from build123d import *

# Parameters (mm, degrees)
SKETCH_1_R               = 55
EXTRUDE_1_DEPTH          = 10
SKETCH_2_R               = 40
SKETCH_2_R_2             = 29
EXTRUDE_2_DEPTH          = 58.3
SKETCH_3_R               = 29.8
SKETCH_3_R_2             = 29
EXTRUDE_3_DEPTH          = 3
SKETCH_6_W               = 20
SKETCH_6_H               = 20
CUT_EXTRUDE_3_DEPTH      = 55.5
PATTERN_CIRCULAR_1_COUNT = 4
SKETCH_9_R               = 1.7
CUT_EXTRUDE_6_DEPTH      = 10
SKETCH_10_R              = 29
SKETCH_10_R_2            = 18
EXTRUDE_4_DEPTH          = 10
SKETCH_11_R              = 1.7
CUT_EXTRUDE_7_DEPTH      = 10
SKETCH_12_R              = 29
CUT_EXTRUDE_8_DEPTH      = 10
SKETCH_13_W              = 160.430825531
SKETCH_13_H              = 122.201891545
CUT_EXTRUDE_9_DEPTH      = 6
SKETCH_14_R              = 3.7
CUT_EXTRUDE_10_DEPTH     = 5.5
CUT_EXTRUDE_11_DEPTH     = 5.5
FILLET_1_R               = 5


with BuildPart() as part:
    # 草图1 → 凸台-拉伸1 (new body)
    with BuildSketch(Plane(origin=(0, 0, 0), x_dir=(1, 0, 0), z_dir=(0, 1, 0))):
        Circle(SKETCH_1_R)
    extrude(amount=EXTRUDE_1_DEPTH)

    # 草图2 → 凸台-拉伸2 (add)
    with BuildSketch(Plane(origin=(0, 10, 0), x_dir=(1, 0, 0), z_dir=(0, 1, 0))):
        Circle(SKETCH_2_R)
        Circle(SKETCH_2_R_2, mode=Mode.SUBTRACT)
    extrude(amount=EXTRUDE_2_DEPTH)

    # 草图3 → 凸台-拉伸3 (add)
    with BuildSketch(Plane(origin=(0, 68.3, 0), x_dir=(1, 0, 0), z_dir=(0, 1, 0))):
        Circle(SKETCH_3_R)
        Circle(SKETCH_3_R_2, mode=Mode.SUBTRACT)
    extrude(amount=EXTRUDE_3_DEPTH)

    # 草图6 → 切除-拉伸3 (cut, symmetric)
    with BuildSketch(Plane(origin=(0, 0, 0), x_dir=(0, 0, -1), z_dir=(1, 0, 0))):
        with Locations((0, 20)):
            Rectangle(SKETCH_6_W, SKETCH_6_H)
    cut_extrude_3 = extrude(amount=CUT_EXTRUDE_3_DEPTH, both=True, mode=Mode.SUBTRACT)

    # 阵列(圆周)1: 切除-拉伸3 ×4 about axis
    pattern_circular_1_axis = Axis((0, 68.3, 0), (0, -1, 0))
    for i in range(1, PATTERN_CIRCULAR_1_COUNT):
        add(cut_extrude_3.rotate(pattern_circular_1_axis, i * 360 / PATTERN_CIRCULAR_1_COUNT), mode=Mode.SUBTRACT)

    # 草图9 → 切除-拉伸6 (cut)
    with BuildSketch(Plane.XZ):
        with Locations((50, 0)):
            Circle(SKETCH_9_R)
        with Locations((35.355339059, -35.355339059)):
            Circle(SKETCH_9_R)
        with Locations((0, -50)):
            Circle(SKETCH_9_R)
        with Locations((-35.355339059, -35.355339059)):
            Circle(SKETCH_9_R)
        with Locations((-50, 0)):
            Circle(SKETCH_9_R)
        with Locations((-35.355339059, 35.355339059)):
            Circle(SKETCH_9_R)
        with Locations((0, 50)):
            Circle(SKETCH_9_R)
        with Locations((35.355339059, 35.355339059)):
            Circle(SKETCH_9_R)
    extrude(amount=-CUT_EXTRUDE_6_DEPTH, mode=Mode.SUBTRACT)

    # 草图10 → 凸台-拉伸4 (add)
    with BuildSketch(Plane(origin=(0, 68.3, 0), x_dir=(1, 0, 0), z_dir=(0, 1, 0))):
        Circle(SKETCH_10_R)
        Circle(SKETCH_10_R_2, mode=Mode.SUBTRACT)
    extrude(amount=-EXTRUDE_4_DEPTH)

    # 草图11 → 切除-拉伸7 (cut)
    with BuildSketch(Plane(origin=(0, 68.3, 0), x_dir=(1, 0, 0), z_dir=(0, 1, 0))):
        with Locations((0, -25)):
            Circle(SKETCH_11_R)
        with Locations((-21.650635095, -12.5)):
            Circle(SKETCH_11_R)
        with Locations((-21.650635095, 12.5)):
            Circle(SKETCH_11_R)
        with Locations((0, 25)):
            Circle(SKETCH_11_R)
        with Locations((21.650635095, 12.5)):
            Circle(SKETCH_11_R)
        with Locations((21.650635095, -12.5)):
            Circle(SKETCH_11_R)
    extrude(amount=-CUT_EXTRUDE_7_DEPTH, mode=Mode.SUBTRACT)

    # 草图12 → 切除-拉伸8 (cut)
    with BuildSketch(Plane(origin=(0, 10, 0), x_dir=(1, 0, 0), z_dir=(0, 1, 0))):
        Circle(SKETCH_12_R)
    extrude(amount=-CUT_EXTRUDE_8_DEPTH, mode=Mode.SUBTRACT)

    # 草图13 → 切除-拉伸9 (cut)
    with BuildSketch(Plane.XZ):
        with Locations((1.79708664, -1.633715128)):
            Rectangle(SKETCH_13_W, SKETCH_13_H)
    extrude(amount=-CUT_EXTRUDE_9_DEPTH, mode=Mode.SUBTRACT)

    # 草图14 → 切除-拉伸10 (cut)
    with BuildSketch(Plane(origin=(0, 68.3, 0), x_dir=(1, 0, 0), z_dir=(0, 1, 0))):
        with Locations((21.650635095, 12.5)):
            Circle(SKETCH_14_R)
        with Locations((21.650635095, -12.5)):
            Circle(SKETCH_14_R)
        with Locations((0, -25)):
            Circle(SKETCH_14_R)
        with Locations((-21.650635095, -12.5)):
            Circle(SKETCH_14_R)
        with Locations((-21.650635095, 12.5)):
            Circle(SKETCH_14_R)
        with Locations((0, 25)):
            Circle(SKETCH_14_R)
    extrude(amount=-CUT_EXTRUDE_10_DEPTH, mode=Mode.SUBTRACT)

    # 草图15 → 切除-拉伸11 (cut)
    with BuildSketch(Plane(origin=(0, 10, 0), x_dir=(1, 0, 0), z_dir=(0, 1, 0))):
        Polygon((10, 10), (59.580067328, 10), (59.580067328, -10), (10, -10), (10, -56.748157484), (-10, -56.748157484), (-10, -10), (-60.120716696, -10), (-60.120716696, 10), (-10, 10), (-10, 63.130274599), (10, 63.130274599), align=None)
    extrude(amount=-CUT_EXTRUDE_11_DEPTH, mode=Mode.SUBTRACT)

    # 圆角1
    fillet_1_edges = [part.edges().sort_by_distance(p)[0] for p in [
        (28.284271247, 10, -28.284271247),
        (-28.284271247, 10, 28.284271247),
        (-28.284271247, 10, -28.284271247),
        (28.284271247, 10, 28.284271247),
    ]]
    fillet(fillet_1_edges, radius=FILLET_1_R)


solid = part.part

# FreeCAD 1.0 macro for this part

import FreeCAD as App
import Part
import Sketcher

V = App.Vector


def edges_at(feature, points):
    """Names of the edges that pass closest to the given points."""
    edges = feature.Shape.Edges
    near = lambda p: min(range(len(edges)), key=lambda i: edges[i].distToShape(Part.Vertex(*p))[0])
    return sorted({f"Edge{near(p) + 1}" for p in points})


def add_polygon(sketch, points):
    """Adds a closed chain of lines whose ends are joined by coincident constraints."""
    first, n = sketch.GeometryCount, len(points)
    for a, b in zip(points, points[1:] + points[:1]):
        sketch.addGeometry(Part.LineSegment(App.Vector(*a, 0), App.Vector(*b, 0)), False)
    for i in range(n):
        sketch.addConstraint(Sketcher.Constraint("Coincident", first + i, 2, first + (i + 1) % n, 1))

doc = App.newDocument("Part")
params = doc.addObject("Spreadsheet::Sheet", "Params")
for row, (alias, value) in enumerate([
    ("sketch1_diameter", "110 mm"),
    ("pad1_length", "10 mm"),
    ("sketch2_diameter", "80 mm"),
    ("sketch2_diameter2", "58 mm"),
    ("pad2_length", "58.3 mm"),
    ("sketch3_diameter", "58 mm"),
    ("sketch3_diameter2", "59.6 mm"),
    ("pad3_length", "3 mm"),
    ("sketch4_width", "20 mm"),
    ("pocket1_length", "111 mm"),
    ("sketch5_diameter", "3.4 mm"),
    ("pocket2_length", "10 mm"),
    ("sketch6_diameter", "58 mm"),
    ("sketch6_diameter2", "36 mm"),
    ("pad4_length", "10 mm"),
    ("sketch7_diameter", "3.4 mm"),
    ("pocket3_length", "10 mm"),
    ("sketch8_diameter", "58 mm"),
    ("pocket4_length", "10 mm"),
    ("pocket5_length", "6 mm"),
    ("sketch10_diameter", "7.4 mm"),
    ("pocket6_length", "5.5 mm"),
    ("sketch11_width", "20 mm"),
    ("pocket7_length", "5.5 mm"),
    ("fillet_radius", "5 mm"),
], start=1):
    params.set(f"A{row}", alias)
    params.set(f"B{row}", "=" + value)
    params.setAlias(f"B{row}", alias)

body = doc.addObject("PartDesign::Body", "Body")

sketch1 = body.newObject("Sketcher::SketchObject", "Sketch")
sketch1.AttachmentSupport = (doc.getObject("XZ_Plane"), [""])
sketch1.MapMode = "FlatFace"
sketch1.addGeometry(Part.Circle(V(0, 0, 0), V(0, 0, 1), 55), False)
sketch1.addConstraint([
    Sketcher.Constraint("Coincident", 0, 3, -1, 1),
    Sketcher.Constraint("Diameter", 0, 110.0),
])
sketch1.setExpression("Constraints[1]", "Params.sketch1_diameter")
pad1 = body.newObject("PartDesign::Pad", "Pad")
pad1.Profile = sketch1
pad1.setExpression("Length", "Params.pad1_length")
pad1.Reversed = True

sketch2 = body.newObject("Sketcher::SketchObject", "Sketch001")
sketch2.AttachmentSupport = (doc.getObject("XZ_Plane"), [""])
sketch2.MapMode = "FlatFace"
sketch2.AttachmentOffset = App.Placement(V(0, 0, -10), App.Rotation())
sketch2.addGeometry([
    Part.Circle(V(0, 0, 0), V(0, 0, 1), 40),
    Part.Circle(V(0, 0, 0), V(0, 0, 1), 29),
], False)
sketch2.addConstraint([
    Sketcher.Constraint("Coincident", 0, 3, -1, 1),
    Sketcher.Constraint("Coincident", 1, 3, -1, 1),
    Sketcher.Constraint("Diameter", 0, 80.0),
    Sketcher.Constraint("Diameter", 1, 58.0),
])
sketch2.setExpression("Constraints[2]", "Params.sketch2_diameter")
sketch2.setExpression("Constraints[3]", "Params.sketch2_diameter2")
pad2 = body.newObject("PartDesign::Pad", "Pad001")
pad2.Profile = sketch2
pad2.setExpression("Length", "Params.pad2_length")
pad2.Reversed = True

sketch3 = body.newObject("Sketcher::SketchObject", "Sketch002")
sketch3.AttachmentSupport = (doc.getObject("XZ_Plane"), [""])
sketch3.MapMode = "FlatFace"
sketch3.AttachmentOffset = App.Placement(V(0, 0, -68.3), App.Rotation())
sketch3.addGeometry([
    Part.Circle(V(0, 0, 0), V(0, 0, 1), 30),
    Part.Circle(V(0, 0, 0), V(0, 0, 1), 29),
], False)
sketch3.addConstraint([
    Sketcher.Constraint("Coincident", 0, 3, -1, 1),
    Sketcher.Constraint("Coincident", 1, 3, -1, 1),
    Sketcher.Constraint("Diameter", 1, 58.0),
    Sketcher.Constraint("Diameter", 0, 59.6),
])
sketch3.setExpression("Constraints[2]", "Params.sketch3_diameter")
sketch3.setExpression("Constraints[3]", "Params.sketch3_diameter2")
pad3 = body.newObject("PartDesign::Pad", "Pad002")
pad3.Profile = sketch3
pad3.setExpression("Length", "Params.pad3_length")
pad3.Reversed = True

sketch4 = body.newObject("Sketcher::SketchObject", "Sketch003")
sketch4.AttachmentSupport = (doc.getObject("YZ_Plane"), [""])
sketch4.MapMode = "FlatFace"
add_polygon(sketch4, [(30, 10), (10, 10), (10, -10), (30, -10)])
sketch4.addConstraint([
    Sketcher.Constraint("Horizontal", 0),
    Sketcher.Constraint("Vertical", 1),
    Sketcher.Constraint("Horizontal", 2),
    Sketcher.Constraint("Vertical", 3),
    Sketcher.Constraint("Equal", 2, 1),
    Sketcher.Constraint("DistanceX", 0, 2, 0, 1, 20.0),
    Sketcher.Constraint("DistanceX", -1, 1, 0, 2, 10.0),
    Sketcher.Constraint("DistanceY", -1, 1, 0, 2, 10.0),
])
sketch4.setExpression("Constraints[9]", "Params.sketch4_width")
pocket1 = body.newObject("PartDesign::Pocket", "Pocket")
pocket1.Profile = sketch4
pocket1.setExpression("Length", "Params.pocket1_length")
pocket1.Midplane = True
doc.recompute()

polarpattern = body.newObject("PartDesign::PolarPattern", "PolarPattern")
polarpattern.Originals = [pocket1]
polarpattern.Axis = (doc.getObject("Y_Axis"), [""])
polarpattern.Angle = 360
polarpattern.Occurrences = 4
body.Tip = polarpattern

sketch5 = body.newObject("Sketcher::SketchObject", "Sketch004")
sketch5.AttachmentSupport = (doc.getObject("XZ_Plane"), [""])
sketch5.MapMode = "FlatFace"
sketch5.addGeometry([
    Part.Circle(V(50, 0, 0), V(0, 0, 1), 1.7),
    Part.Circle(V(35.4, -35.4, 0), V(0, 0, 1), 1.7),
    Part.Circle(V(0, -50, 0), V(0, 0, 1), 1.7),
    Part.Circle(V(-35.4, -35.4, 0), V(0, 0, 1), 1.7),
    Part.Circle(V(-50, 0, 0), V(0, 0, 1), 1.7),
    Part.Circle(V(-35.4, 35.4, 0), V(0, 0, 1), 1.7),
    Part.Circle(V(0, 50, 0), V(0, 0, 1), 1.7),
    Part.Circle(V(35.4, 35.4, 0), V(0, 0, 1), 1.7),
], False)
sketch5.addConstraint([
    Sketcher.Constraint("Equal", 0, 1),
    Sketcher.Constraint("Equal", 1, 2),
    Sketcher.Constraint("Equal", 2, 3),
    Sketcher.Constraint("Equal", 3, 4),
    Sketcher.Constraint("Equal", 4, 5),
    Sketcher.Constraint("Equal", 5, 6),
    Sketcher.Constraint("Equal", 6, 7),
    Sketcher.Constraint("Symmetric", 0, 3, 4, 3, -1, 1),
    Sketcher.Constraint("Symmetric", 1, 3, 5, 3, -1, 1),
    Sketcher.Constraint("Symmetric", 2, 3, 6, 3, -1, 1),
    Sketcher.Constraint("Symmetric", 3, 3, 7, 3, -1, 1),
    Sketcher.Constraint("Symmetric", 1, 3, 3, 3, -2),
    Sketcher.Constraint("PointOnObject", 0, 3, -1),
    Sketcher.Constraint("PointOnObject", 2, 3, -2),
    Sketcher.Constraint("Diameter", 0, 3.4),
    Sketcher.Constraint("DistanceX", -1, 1, 0, 3, 50.0),
    Sketcher.Constraint("DistanceY", 2, 3, -1, 1, 50.0),
    Sketcher.Constraint("DistanceX", -1, 1, 1, 3, 35.355339),
    Sketcher.Constraint("DistanceY", 1, 3, -1, 1, 35.355339),
])
sketch5.setExpression("Constraints[14]", "Params.sketch5_diameter")
pocket2 = body.newObject("PartDesign::Pocket", "Pocket001")
pocket2.Profile = sketch5
pocket2.setExpression("Length", "Params.pocket2_length")

sketch6 = body.newObject("Sketcher::SketchObject", "Sketch005")
sketch6.AttachmentSupport = (doc.getObject("XZ_Plane"), [""])
sketch6.MapMode = "FlatFace"
sketch6.AttachmentOffset = App.Placement(V(0, 0, -68.3), App.Rotation())
sketch6.addGeometry([
    Part.Circle(V(0, 0, 0), V(0, 0, 1), 29),
    Part.Circle(V(0, 0, 0), V(0, 0, 1), 18),
], False)
sketch6.addConstraint([
    Sketcher.Constraint("Coincident", 0, 3, -1, 1),
    Sketcher.Constraint("Coincident", 1, 3, -1, 1),
    Sketcher.Constraint("Diameter", 0, 58.0),
    Sketcher.Constraint("Diameter", 1, 36.0),
])
sketch6.setExpression("Constraints[2]", "Params.sketch6_diameter")
sketch6.setExpression("Constraints[3]", "Params.sketch6_diameter2")
pad4 = body.newObject("PartDesign::Pad", "Pad003")
pad4.Profile = sketch6
pad4.setExpression("Length", "Params.pad4_length")

sketch7 = body.newObject("Sketcher::SketchObject", "Sketch006")
sketch7.AttachmentSupport = (doc.getObject("XZ_Plane"), [""])
sketch7.MapMode = "FlatFace"
sketch7.AttachmentOffset = App.Placement(V(0, 0, -68.3), App.Rotation())
sketch7.addGeometry([
    Part.Circle(V(0, 25, 0), V(0, 0, 1), 1.7),
    Part.Circle(V(-21.7, 12.5, 0), V(0, 0, 1), 1.7),
    Part.Circle(V(-21.7, -12.5, 0), V(0, 0, 1), 1.7),
    Part.Circle(V(0, -25, 0), V(0, 0, 1), 1.7),
    Part.Circle(V(21.7, -12.5, 0), V(0, 0, 1), 1.7),
    Part.Circle(V(21.7, 12.5, 0), V(0, 0, 1), 1.7),
], False)
sketch7.addConstraint([
    Sketcher.Constraint("Equal", 0, 1),
    Sketcher.Constraint("Equal", 1, 2),
    Sketcher.Constraint("Equal", 2, 3),
    Sketcher.Constraint("Equal", 3, 4),
    Sketcher.Constraint("Equal", 4, 5),
    Sketcher.Constraint("Symmetric", 0, 3, 3, 3, -1, 1),
    Sketcher.Constraint("Symmetric", 1, 3, 4, 3, -1, 1),
    Sketcher.Constraint("Symmetric", 2, 3, 5, 3, -1, 1),
    Sketcher.Constraint("Symmetric", 2, 3, 4, 3, -2),
    Sketcher.Constraint("PointOnObject", 0, 3, -2),
    Sketcher.Constraint("Diameter", 0, 3.4),
    Sketcher.Constraint("DistanceY", -1, 1, 0, 3, 25.0),
    Sketcher.Constraint("DistanceY", 2, 3, 1, 3, 25.0),
    Sketcher.Constraint("DistanceX", 2, 3, 4, 3, 43.30127),
])
sketch7.setExpression("Constraints[10]", "Params.sketch7_diameter")
pocket3 = body.newObject("PartDesign::Pocket", "Pocket002")
pocket3.Profile = sketch7
pocket3.setExpression("Length", "Params.pocket3_length")
pocket3.Reversed = True

sketch8 = body.newObject("Sketcher::SketchObject", "Sketch007")
sketch8.AttachmentSupport = (doc.getObject("XZ_Plane"), [""])
sketch8.MapMode = "FlatFace"
sketch8.AttachmentOffset = App.Placement(V(0, 0, -10), App.Rotation())
sketch8.addGeometry(Part.Circle(V(0, 0, 0), V(0, 0, 1), 29), False)
sketch8.addConstraint([
    Sketcher.Constraint("Coincident", 0, 3, -1, 1),
    Sketcher.Constraint("Diameter", 0, 58.0),
])
sketch8.setExpression("Constraints[1]", "Params.sketch8_diameter")
pocket4 = body.newObject("PartDesign::Pocket", "Pocket003")
pocket4.Profile = sketch8
pocket4.setExpression("Length", "Params.pocket4_length")
pocket4.Reversed = True

sketch9 = body.newObject("Sketcher::SketchObject", "Sketch008")
sketch9.AttachmentSupport = (doc.getObject("XZ_Plane"), [""])
sketch9.MapMode = "FlatFace"
add_polygon(sketch9, [(-78, 59), (-78, -63), (82, -63), (82, 59)])
sketch9.addConstraint([
    Sketcher.Constraint("Vertical", 0),
    Sketcher.Constraint("Horizontal", 1),
    Sketcher.Constraint("Vertical", 2),
    Sketcher.Constraint("Horizontal", 3),
    Sketcher.Constraint("DistanceY", 0, 2, 0, 1, 122.201892),
    Sketcher.Constraint("DistanceX", -1, 1, 1, 2, 82.012499),
    Sketcher.Constraint("DistanceX", 1, 1, 1, 2, 160.430826),
    Sketcher.Constraint("DistanceY", 0, 2, -1, 1, 62.734661),
])
pocket5 = body.newObject("PartDesign::Pocket", "Pocket004")
pocket5.Profile = sketch9
pocket5.setExpression("Length", "Params.pocket5_length")

sketch10 = body.newObject("Sketcher::SketchObject", "Sketch009")
sketch10.AttachmentSupport = (doc.getObject("XZ_Plane"), [""])
sketch10.MapMode = "FlatFace"
sketch10.AttachmentOffset = App.Placement(V(0, 0, -68.3), App.Rotation())
sketch10.addGeometry([
    Part.Circle(V(21.7, -12.5, 0), V(0, 0, 1), 3.7),
    Part.Circle(V(21.7, 12.5, 0), V(0, 0, 1), 3.7),
    Part.Circle(V(0, 25, 0), V(0, 0, 1), 3.7),
    Part.Circle(V(-21.7, 12.5, 0), V(0, 0, 1), 3.7),
    Part.Circle(V(-21.7, -12.5, 0), V(0, 0, 1), 3.7),
    Part.Circle(V(0, -25, 0), V(0, 0, 1), 3.7),
], False)
sketch10.addConstraint([
    Sketcher.Constraint("Equal", 0, 1),
    Sketcher.Constraint("Equal", 1, 2),
    Sketcher.Constraint("Equal", 2, 3),
    Sketcher.Constraint("Equal", 3, 4),
    Sketcher.Constraint("Equal", 4, 5),
    Sketcher.Constraint("Symmetric", 0, 3, 3, 3, -1, 1),
    Sketcher.Constraint("Symmetric", 1, 3, 4, 3, -1, 1),
    Sketcher.Constraint("Symmetric", 2, 3, 5, 3, -1, 1),
    Sketcher.Constraint("Symmetric", 1, 3, 3, 3, -2),
    Sketcher.Constraint("PointOnObject", 2, 3, -2),
    Sketcher.Constraint("Diameter", 0, 7.4),
    Sketcher.Constraint("DistanceY", -1, 1, 2, 3, 25.0),
    Sketcher.Constraint("DistanceY", 0, 3, 1, 3, 25.0),
    Sketcher.Constraint("DistanceX", 3, 3, 1, 3, 43.30127),
])
sketch10.setExpression("Constraints[10]", "Params.sketch10_diameter")
pocket6 = body.newObject("PartDesign::Pocket", "Pocket005")
pocket6.Profile = sketch10
pocket6.setExpression("Length", "Params.pocket6_length")
pocket6.Reversed = True

sketch11 = body.newObject("Sketcher::SketchObject", "Sketch010")
sketch11.AttachmentSupport = (doc.getObject("XZ_Plane"), [""])
sketch11.MapMode = "FlatFace"
sketch11.AttachmentOffset = App.Placement(V(0, 0, -10), App.Rotation())
add_polygon(sketch11, [(60, -10), (10, -10), (10, -63), (-10, -63), (-10, -10), (-60, -10), (-60, 10), (-10, 10), (-10, 57), (10, 57), (10, 10), (60, 10)])
sketch11.addConstraint([
    Sketcher.Constraint("Horizontal", 0),
    Sketcher.Constraint("Vertical", 1),
    Sketcher.Constraint("Horizontal", 2),
    Sketcher.Constraint("Vertical", 3),
    Sketcher.Constraint("Horizontal", 4),
    Sketcher.Constraint("Vertical", 5),
    Sketcher.Constraint("Horizontal", 6),
    Sketcher.Constraint("Vertical", 7),
    Sketcher.Constraint("Horizontal", 8),
    Sketcher.Constraint("Vertical", 9),
    Sketcher.Constraint("Horizontal", 10),
    Sketcher.Constraint("Vertical", 11),
    Sketcher.Constraint("Symmetric", 0, 2, 6, 2, -1, 1),
    Sketcher.Constraint("Symmetric", 3, 2, 9, 2, -1, 1),
    Sketcher.Constraint("Symmetric", 0, 2, 3, 2, -2),
    Sketcher.Constraint("Equal", 8, 5),
    Sketcher.Constraint("DistanceX", 2, 2, 2, 1, 20.0),
    Sketcher.Constraint("DistanceX", 0, 2, 0, 1, 49.580067),
    Sketcher.Constraint("DistanceX", 4, 2, 4, 1, 50.120717),
    Sketcher.Constraint("DistanceY", 1, 2, 1, 1, 53.130275),
    Sketcher.Constraint("DistanceY", 7, 1, 7, 2, 46.748157),
])
sketch11.setExpression("Constraints[28]", "Params.sketch11_width")
pocket7 = body.newObject("PartDesign::Pocket", "Pocket006")
pocket7.Profile = sketch11
pocket7.setExpression("Length", "Params.pocket7_length")
pocket7.Reversed = True
doc.recompute()

fillet = body.newObject("PartDesign::Fillet", "Fillet")
fillet.Base = (pocket7, edges_at(pocket7, [
    (28.284, 10, -28.284),
    (-28.284, 10, 28.284),
    (-28.284, 10, -28.284),
    (28.284, 10, 28.284),
]))
fillet.setExpression("Radius", "Params.fillet_radius")

doc.recompute()
